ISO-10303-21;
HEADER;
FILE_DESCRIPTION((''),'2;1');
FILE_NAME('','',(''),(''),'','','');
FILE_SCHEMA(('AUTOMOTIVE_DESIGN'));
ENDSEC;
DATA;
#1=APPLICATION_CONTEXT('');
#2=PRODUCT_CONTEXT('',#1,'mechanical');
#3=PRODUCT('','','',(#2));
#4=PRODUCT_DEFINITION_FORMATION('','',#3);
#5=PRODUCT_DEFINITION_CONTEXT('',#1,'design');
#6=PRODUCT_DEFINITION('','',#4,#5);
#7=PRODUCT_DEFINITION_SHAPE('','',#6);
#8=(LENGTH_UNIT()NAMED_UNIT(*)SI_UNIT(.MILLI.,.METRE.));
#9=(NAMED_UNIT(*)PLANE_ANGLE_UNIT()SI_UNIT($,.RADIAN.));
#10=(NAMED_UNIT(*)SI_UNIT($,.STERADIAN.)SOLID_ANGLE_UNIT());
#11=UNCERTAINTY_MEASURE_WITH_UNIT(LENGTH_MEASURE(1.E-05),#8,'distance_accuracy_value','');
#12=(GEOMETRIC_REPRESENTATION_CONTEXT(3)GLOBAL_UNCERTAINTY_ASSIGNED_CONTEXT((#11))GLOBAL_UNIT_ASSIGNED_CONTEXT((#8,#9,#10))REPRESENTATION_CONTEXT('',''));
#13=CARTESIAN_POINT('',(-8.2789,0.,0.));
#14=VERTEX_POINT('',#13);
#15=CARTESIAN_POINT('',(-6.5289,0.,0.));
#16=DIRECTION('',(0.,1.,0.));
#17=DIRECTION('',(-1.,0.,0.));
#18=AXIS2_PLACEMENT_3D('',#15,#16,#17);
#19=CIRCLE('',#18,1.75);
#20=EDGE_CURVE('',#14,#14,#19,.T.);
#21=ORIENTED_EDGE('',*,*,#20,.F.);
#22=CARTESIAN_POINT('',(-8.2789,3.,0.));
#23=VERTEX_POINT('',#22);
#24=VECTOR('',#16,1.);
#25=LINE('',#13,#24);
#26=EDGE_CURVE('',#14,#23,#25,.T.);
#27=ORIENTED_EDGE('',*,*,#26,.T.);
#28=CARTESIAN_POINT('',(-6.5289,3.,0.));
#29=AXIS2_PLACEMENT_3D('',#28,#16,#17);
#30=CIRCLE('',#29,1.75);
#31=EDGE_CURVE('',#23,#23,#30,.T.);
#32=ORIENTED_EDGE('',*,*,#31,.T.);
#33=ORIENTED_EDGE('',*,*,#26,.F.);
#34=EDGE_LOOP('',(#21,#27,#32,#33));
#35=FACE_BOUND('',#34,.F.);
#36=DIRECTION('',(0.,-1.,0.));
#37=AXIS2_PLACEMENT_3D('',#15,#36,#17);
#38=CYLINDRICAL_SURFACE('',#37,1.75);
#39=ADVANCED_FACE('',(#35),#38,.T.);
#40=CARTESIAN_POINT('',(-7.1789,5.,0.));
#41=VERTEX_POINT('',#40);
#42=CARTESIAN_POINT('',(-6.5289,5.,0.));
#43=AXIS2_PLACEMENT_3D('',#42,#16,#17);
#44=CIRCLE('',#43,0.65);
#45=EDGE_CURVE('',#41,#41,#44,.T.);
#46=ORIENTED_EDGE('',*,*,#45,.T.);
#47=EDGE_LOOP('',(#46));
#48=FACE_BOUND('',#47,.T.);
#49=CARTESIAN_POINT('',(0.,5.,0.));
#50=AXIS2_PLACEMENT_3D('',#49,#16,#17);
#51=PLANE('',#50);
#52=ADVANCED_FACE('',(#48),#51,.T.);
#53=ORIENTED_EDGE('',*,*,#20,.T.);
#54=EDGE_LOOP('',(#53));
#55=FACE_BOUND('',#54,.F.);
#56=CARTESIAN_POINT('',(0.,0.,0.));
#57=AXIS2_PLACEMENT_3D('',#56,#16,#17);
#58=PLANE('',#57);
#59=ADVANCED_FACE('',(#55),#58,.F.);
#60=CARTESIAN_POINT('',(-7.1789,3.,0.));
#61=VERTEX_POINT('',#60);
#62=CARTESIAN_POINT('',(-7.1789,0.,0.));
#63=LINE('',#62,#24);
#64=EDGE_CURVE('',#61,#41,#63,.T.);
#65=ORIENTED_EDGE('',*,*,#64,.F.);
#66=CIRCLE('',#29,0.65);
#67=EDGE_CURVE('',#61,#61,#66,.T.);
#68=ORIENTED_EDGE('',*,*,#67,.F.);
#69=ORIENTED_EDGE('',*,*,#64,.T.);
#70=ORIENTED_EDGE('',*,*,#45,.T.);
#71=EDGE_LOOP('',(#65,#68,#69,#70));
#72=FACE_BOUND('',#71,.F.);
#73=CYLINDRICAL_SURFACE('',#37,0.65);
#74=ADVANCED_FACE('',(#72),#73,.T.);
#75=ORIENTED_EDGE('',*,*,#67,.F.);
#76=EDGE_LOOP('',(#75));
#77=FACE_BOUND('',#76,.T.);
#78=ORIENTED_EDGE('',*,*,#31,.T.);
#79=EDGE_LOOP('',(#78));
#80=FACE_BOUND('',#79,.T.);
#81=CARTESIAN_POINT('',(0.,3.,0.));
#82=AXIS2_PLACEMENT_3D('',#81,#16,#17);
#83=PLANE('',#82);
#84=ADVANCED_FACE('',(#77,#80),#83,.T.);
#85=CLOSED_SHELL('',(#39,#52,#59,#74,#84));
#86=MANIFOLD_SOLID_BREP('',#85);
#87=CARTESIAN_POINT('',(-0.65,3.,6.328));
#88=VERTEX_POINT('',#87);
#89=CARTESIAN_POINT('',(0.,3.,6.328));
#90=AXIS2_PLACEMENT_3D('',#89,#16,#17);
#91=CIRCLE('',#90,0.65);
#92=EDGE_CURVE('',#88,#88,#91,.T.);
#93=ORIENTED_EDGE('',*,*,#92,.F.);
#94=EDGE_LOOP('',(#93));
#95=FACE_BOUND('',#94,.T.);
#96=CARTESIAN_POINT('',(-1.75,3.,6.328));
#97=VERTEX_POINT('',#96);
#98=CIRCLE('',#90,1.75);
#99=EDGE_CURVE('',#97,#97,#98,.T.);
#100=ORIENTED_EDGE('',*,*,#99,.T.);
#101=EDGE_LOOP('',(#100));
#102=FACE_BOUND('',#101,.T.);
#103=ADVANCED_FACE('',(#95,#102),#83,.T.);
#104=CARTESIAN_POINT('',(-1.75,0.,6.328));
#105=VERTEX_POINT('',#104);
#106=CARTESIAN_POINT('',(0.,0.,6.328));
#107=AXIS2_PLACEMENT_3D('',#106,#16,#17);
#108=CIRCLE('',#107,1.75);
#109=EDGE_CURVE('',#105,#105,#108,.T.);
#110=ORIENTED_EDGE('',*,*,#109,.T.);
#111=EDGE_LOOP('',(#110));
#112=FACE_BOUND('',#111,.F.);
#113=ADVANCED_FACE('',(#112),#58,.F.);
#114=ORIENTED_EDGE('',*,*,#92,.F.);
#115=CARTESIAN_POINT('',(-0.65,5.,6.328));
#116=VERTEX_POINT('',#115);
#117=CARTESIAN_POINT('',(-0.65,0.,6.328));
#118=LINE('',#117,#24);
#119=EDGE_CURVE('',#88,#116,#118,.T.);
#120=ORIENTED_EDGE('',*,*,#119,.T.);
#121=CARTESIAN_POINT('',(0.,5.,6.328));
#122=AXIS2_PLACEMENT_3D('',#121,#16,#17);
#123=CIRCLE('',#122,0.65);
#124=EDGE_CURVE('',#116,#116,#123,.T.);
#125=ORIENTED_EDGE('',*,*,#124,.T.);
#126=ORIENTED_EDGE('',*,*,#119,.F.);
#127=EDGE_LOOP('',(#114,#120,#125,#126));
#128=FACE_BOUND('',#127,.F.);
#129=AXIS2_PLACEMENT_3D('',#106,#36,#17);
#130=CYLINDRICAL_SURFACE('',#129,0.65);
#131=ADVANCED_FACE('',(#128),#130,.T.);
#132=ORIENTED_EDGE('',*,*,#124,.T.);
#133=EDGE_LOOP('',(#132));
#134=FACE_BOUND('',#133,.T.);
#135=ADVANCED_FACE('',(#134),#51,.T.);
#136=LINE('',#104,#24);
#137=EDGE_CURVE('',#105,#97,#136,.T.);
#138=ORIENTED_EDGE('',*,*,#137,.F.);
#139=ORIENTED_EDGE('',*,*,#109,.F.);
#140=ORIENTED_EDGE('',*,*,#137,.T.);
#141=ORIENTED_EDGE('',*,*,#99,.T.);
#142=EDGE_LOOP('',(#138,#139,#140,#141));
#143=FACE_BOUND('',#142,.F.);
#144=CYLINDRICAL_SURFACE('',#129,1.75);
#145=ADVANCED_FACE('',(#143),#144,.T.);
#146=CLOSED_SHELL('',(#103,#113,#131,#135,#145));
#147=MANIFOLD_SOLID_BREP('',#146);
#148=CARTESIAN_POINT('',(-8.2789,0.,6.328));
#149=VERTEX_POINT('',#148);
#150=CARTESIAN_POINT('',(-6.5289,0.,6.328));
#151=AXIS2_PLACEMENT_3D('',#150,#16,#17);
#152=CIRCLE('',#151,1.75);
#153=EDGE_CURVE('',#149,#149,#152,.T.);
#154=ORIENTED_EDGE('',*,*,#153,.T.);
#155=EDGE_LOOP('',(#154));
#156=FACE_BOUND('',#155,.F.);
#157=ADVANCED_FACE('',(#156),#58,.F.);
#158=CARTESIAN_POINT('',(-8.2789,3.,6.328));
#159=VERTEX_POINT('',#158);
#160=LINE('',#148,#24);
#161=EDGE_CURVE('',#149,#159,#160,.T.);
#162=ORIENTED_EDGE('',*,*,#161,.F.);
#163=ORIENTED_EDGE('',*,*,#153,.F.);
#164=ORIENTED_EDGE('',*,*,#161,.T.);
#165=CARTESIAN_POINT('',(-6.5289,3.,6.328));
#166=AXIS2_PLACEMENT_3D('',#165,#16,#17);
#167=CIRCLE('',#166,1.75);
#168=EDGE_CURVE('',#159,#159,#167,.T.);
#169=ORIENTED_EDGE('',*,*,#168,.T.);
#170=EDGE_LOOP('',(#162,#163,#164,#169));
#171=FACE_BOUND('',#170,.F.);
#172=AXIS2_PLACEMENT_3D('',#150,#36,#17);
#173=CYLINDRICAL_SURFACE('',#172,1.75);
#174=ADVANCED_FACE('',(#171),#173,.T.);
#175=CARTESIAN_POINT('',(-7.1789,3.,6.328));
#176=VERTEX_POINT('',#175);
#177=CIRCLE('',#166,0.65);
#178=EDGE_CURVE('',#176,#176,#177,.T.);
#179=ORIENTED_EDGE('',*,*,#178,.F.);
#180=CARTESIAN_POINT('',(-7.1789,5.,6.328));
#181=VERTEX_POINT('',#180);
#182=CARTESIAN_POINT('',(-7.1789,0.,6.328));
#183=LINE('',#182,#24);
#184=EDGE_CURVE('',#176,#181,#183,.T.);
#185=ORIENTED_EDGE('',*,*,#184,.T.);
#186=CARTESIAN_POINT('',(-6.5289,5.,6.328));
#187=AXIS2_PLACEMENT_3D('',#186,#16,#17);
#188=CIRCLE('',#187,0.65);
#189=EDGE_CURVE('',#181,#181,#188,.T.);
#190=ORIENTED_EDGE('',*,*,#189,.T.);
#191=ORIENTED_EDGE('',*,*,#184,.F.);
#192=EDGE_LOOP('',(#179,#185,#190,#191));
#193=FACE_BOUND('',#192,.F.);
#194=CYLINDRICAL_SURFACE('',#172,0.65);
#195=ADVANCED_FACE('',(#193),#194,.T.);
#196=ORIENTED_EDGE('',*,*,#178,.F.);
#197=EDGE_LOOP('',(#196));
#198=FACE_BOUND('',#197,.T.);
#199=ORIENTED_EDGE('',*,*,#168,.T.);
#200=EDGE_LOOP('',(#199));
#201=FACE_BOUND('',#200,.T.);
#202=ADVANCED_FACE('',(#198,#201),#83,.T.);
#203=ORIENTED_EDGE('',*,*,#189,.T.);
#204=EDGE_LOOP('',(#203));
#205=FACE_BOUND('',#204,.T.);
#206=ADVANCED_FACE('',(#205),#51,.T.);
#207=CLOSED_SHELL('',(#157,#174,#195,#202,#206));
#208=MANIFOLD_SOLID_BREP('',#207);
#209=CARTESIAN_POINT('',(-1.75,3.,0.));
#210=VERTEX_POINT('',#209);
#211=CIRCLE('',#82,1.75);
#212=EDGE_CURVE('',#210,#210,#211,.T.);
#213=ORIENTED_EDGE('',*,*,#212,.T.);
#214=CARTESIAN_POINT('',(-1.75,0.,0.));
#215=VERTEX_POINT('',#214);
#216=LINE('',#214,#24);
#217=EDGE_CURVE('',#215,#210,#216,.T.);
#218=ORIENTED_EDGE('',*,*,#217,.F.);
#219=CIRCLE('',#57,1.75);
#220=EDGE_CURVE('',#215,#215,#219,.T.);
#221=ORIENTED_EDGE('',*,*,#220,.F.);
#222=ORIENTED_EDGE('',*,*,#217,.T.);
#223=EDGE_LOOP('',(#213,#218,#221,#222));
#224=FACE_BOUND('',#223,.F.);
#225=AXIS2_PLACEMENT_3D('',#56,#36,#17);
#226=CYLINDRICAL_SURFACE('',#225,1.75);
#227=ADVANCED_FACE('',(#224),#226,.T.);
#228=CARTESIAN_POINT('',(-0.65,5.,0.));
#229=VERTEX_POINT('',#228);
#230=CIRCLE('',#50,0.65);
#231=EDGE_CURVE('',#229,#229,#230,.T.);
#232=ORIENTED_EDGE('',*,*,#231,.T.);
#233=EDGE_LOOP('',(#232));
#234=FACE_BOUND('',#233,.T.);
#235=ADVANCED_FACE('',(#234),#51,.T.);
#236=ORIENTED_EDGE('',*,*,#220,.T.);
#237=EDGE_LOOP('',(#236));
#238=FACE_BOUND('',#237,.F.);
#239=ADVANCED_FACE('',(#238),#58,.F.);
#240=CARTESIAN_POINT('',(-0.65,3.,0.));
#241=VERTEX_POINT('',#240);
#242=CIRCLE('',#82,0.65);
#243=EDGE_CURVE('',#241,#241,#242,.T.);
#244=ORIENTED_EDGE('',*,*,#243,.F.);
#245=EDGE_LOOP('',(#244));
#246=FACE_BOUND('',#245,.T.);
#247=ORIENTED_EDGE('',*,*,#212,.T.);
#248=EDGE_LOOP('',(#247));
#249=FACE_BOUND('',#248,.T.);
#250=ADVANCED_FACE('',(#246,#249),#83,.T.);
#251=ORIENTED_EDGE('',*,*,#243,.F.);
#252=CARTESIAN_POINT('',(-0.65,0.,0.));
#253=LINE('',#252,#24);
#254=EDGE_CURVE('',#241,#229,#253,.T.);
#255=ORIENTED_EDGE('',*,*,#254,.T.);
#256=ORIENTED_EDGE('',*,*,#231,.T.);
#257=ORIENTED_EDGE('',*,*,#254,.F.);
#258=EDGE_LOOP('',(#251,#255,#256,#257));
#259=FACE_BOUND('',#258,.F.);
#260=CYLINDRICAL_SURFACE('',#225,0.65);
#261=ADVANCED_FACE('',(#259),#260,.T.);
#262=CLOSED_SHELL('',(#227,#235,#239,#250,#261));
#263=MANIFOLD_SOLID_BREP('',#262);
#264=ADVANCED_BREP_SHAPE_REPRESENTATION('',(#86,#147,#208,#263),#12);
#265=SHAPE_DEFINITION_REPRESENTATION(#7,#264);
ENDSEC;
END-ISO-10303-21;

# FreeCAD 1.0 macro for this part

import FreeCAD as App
import Part
import Sketcher

doc = App.newDocument("Part")
body = doc.addObject("PartDesign::Body", "Body")
body.AllowCompound = True

sketch1 = body.newObject("Sketcher::SketchObject", "Sketch")
sketch1.AttachmentSupport = (doc.getObject("XZ_Plane"), [""])
sketch1.MapMode = "FlatFace"
sketch1.addGeometry([
    Part.Circle(App.Vector(0, 0, 0), App.Vector(0, 0, 1), 1.8),
    Part.Circle(App.Vector(0, 0, 0), App.Vector(0, 0, 1), 0.7),
    Part.Circle(App.Vector(0, 6.3, 0), App.Vector(0, 0, 1), 1.8),
    Part.Circle(App.Vector(0, 6.3, 0), App.Vector(0, 0, 1), 0.7),
    Part.Circle(App.Vector(-6.5, 0, 0), App.Vector(0, 0, 1), 1.8),
    Part.Circle(App.Vector(-6.5, 0, 0), App.Vector(0, 0, 1), 0.7),
    Part.Circle(App.Vector(-6.5, 6.3, 0), App.Vector(0, 0, 1), 1.8),
    Part.Circle(App.Vector(-6.5, 6.3, 0), App.Vector(0, 0, 1), 0.7),
], False)
sketch1.addConstraint([
    Sketcher.Constraint("Coincident", 0, 3, -1, 1),
    Sketcher.Constraint("Coincident", 1, 3, -1, 1),
    Sketcher.Constraint("Coincident", 3, 3, 2, 3),
    Sketcher.Constraint("Coincident", 5, 3, 4, 3),
    Sketcher.Constraint("Coincident", 7, 3, 6, 3),
    Sketcher.Constraint("Equal", 0, 2),
    Sketcher.Constraint("Equal", 1, 3),
    Sketcher.Constraint("Equal", 2, 4),
    Sketcher.Constraint("Equal", 3, 5),
    Sketcher.Constraint("Equal", 4, 6),
    Sketcher.Constraint("Equal", 5, 7),
    Sketcher.Constraint("PointOnObject", 2, 3, -2),
    Sketcher.Constraint("PointOnObject", 4, 3, -1),
    Sketcher.Constraint("Horizontal", 3, 3, 6, 3),
    Sketcher.Constraint("Vertical", 5, 3, 6, 3),
    Sketcher.Constraint("Diameter", 0, 3.5),
    Sketcher.Constraint("Diameter", 1, 1.3),
    Sketcher.Constraint("DistanceY", -1, 1, 2, 3, 6.328),
    Sketcher.Constraint("DistanceX", 4, 3, -1, 1, 6.529),
])
pad1 = body.newObject("PartDesign::Pad", "Pad")
pad1.Profile = sketch1
pad1.Length = 3
pad1.Reversed = True

sketch2 = body.newObject("Sketcher::SketchObject", "Sketch001")
sketch2.AttachmentSupport = (doc.getObject("XZ_Plane"), [""])
sketch2.MapMode = "FlatFace"
sketch2.addGeometry([
    Part.Circle(App.Vector(0, 0, 0), App.Vector(0, 0, 1), 0.7),
    Part.Circle(App.Vector(0, 6.3, 0), App.Vector(0, 0, 1), 0.7),
    Part.Circle(App.Vector(-6.5, 0, 0), App.Vector(0, 0, 1), 0.7),
    Part.Circle(App.Vector(-6.5, 6.3, 0), App.Vector(0, 0, 1), 0.7),
], False)
sketch2.addConstraint([
    Sketcher.Constraint("Coincident", 0, 3, -1, 1),
    Sketcher.Constraint("Equal", 0, 1),
    Sketcher.Constraint("Equal", 1, 2),
    Sketcher.Constraint("Equal", 2, 3),
    Sketcher.Constraint("PointOnObject", 1, 3, -2),
    Sketcher.Constraint("PointOnObject", 2, 3, -1),
    Sketcher.Constraint("Horizontal", 1, 3, 3, 3),
    Sketcher.Constraint("Vertical", 2, 3, 3, 3),
    Sketcher.Constraint("Diameter", 0, 1.3),
    Sketcher.Constraint("DistanceY", -1, 1, 1, 3, 6.328),
    Sketcher.Constraint("DistanceX", 2, 3, -1, 1, 6.529),
])
pad2 = body.newObject("PartDesign::Pad", "Pad001")
pad2.Profile = sketch2
pad2.Length = 5
pad2.Reversed = True

doc.recompute()
